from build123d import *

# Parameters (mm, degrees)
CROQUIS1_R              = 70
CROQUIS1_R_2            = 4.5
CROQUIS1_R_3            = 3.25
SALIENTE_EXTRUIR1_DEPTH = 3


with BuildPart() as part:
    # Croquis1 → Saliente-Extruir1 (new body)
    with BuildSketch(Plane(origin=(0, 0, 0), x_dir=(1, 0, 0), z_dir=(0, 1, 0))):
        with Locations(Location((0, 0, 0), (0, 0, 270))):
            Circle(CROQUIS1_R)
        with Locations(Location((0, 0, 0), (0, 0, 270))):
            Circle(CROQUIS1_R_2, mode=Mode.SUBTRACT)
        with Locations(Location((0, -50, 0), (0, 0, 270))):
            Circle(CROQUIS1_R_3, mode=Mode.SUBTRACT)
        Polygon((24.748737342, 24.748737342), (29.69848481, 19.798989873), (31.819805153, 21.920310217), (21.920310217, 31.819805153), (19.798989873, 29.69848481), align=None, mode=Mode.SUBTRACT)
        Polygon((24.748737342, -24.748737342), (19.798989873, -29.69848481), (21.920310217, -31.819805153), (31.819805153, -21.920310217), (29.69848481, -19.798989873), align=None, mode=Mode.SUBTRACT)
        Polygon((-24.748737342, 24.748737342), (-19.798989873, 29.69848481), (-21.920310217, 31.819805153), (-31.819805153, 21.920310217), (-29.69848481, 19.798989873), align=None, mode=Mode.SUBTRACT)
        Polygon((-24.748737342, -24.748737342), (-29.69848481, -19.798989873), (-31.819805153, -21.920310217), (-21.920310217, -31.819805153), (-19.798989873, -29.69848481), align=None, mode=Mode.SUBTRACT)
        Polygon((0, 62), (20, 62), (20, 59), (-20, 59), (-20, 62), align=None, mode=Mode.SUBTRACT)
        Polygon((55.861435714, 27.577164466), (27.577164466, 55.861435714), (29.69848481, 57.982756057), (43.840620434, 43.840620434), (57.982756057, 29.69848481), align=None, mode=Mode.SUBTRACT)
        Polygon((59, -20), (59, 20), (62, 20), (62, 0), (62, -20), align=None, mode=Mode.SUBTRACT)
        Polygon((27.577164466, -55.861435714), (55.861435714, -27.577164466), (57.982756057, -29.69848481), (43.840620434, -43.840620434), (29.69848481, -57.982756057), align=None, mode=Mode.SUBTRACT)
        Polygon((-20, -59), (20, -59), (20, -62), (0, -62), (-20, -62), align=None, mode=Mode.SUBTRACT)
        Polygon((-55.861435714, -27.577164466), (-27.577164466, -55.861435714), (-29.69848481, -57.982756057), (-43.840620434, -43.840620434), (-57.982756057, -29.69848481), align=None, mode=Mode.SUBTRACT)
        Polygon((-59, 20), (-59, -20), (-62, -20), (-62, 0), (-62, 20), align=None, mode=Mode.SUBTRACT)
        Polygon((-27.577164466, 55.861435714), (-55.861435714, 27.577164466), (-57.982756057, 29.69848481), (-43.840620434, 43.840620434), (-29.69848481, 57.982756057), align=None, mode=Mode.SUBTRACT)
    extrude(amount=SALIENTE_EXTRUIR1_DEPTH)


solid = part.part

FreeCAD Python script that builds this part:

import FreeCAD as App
import Part
import Sketcher
Q = App.Units.Quantity

doc = App.newDocument("Part")
body = doc.addObject("PartDesign::Body", "Body")

sketch1 = body.newObject("Sketcher::SketchObject", "Sketch")
sketch1.AttachmentSupport = (doc.getObject("XZ_Plane"), [""])
sketch1.MapMode = "FlatFace"
sketch1.addGeometry(Part.Circle(App.Vector(0, 0, 0), App.Vector(0, 0, 1), 70), False)
sketch1.addGeometry(Part.LineSegment(App.Vector(-29.7, -58, 0), App.Vector(-27.6, -55.9, 0)), False)
sketch1.addGeometry(Part.LineSegment(App.Vector(-27.6, -55.9, 0), App.Vector(-55.9, -27.6, 0)), False)
sketch1.addGeometry(Part.LineSegment(App.Vector(-55.9, -27.6, 0), App.Vector(-58, -29.7, 0)), False)
sketch1.addGeometry(Part.LineSegment(App.Vector(-58, -29.7, 0), App.Vector(-43.8, -43.8, 0)), False)
sketch1.addGeometry(Part.LineSegment(App.Vector(-43.8, -43.8, 0), App.Vector(-29.7, -58, 0)), False)
sketch1.addGeometry(Part.LineSegment(App.Vector(-19.8, -29.7, 0), App.Vector(-24.7, -24.7, 0)), False)
sketch1.addGeometry(Part.LineSegment(App.Vector(-24.7, -24.7, 0), App.Vector(-29.7, -19.8, 0)), False)
sketch1.addGeometry(Part.LineSegment(App.Vector(-29.7, -19.8, 0), App.Vector(-31.8, -21.9, 0)), False)
sketch1.addGeometry(Part.LineSegment(App.Vector(-31.8, -21.9, 0), App.Vector(-21.9, -31.8, 0)), False)
sketch1.addGeometry(Part.LineSegment(App.Vector(-21.9, -31.8, 0), App.Vector(-19.8, -29.7, 0)), False)
sketch1.addGeometry(Part.LineSegment(App.Vector(-62, -20, 0), App.Vector(-59, -20, 0)), False)
sketch1.addGeometry(Part.LineSegment(App.Vector(-59, -20, 0), App.Vector(-59, 20, 0)), False)
sketch1.addGeometry(Part.LineSegment(App.Vector(-59, 20, 0), App.Vector(-62, 20, 0)), False)
sketch1.addGeometry(Part.LineSegment(App.Vector(-62, 20, 0), App.Vector(-62, -20, 0)), False)
sketch1.addGeometry(Part.LineSegment(App.Vector(-58, 29.7, 0), App.Vector(-55.9, 27.6, 0)), False)
sketch1.addGeometry(Part.LineSegment(App.Vector(-55.9, 27.6, 0), App.Vector(-27.6, 55.9, 0)), False)
sketch1.addGeometry(Part.LineSegment(App.Vector(-27.6, 55.9, 0), App.Vector(-29.7, 58, 0)), False)
sketch1.addGeometry(Part.LineSegment(App.Vector(-29.7, 58, 0), App.Vector(-43.8, 43.8, 0)), False)
sketch1.addGeometry(Part.LineSegment(App.Vector(-43.8, 43.8, 0), App.Vector(-58, 29.7, 0)), False)
sketch1.addGeometry(Part.LineSegment(App.Vector(-29.7, 19.8, 0), App.Vector(-24.7, 24.7, 0)), False)
sketch1.addGeometry(Part.LineSegment(App.Vector(-24.7, 24.7, 0), App.Vector(-19.8, 29.7, 0)), False)
sketch1.addGeometry(Part.LineSegment(App.Vector(-19.8, 29.7, 0), App.Vector(-21.9, 31.8, 0)), False)
sketch1.addGeometry(Part.LineSegment(App.Vector(-21.9, 31.8, 0), App.Vector(-31.8, 21.9, 0)), False)
sketch1.addGeometry(Part.LineSegment(App.Vector(-31.8, 21.9, 0), App.Vector(-29.7, 19.8, 0)), False)
sketch1.addGeometry(Part.LineSegment(App.Vector(-20, -62, 0), App.Vector(20, -62, 0)), False)
sketch1.addGeometry(Part.LineSegment(App.Vector(20, -62, 0), App.Vector(20, -59, 0)), False)
sketch1.addGeometry(Part.LineSegment(App.Vector(20, -59, 0), App.Vector(-20, -59, 0)), False)
sketch1.addGeometry(Part.LineSegment(App.Vector(-20, -59, 0), App.Vector(-20, -62, 0)), False)
sketch1.addGeometry(Part.LineSegment(App.Vector(29.7, -19.8, 0), App.Vector(24.7, -24.7, 0)), False)
sketch1.addGeometry(Part.LineSegment(App.Vector(24.7, -24.7, 0), App.Vector(19.8, -29.7, 0)), False)
sketch1.addGeometry(Part.LineSegment(App.Vector(19.8, -29.7, 0), App.Vector(21.9, -31.8, 0)), False)
sketch1.addGeometry(Part.LineSegment(App.Vector(21.9, -31.8, 0), App.Vector(31.8, -21.9, 0)), False)
sketch1.addGeometry(Part.LineSegment(App.Vector(31.8, -21.9, 0), App.Vector(29.7, -19.8, 0)), False)
sketch1.addGeometry(Part.LineSegment(App.Vector(58, -29.7, 0), App.Vector(55.9, -27.6, 0)), False)
sketch1.addGeometry(Part.LineSegment(App.Vector(55.9, -27.6, 0), App.Vector(27.6, -55.9, 0)), False)
sketch1.addGeometry(Part.LineSegment(App.Vector(27.6, -55.9, 0), App.Vector(29.7, -58, 0)), False)
sketch1.addGeometry(Part.LineSegment(App.Vector(29.7, -58, 0), App.Vector(43.8, -43.8, 0)), False)
sketch1.addGeometry(Part.LineSegment(App.Vector(43.8, -43.8, 0), App.Vector(58, -29.7, 0)), False)
sketch1.addGeometry(Part.Circle(App.Vector(0, 0, 0), App.Vector(0, 0, 1), 4.5), False)
sketch1.addGeometry(Part.LineSegment(App.Vector(19.8, 29.7, 0), App.Vector(24.7, 24.7, 0)), False)
sketch1.addGeometry(Part.LineSegment(App.Vector(24.7, 24.7, 0), App.Vector(29.7, 19.8, 0)), False)
sketch1.addGeometry(Part.LineSegment(App.Vector(29.7, 19.8, 0), App.Vector(31.8, 21.9, 0)), False)
sketch1.addGeometry(Part.LineSegment(App.Vector(31.8, 21.9, 0), App.Vector(21.9, 31.8, 0)), False)
sketch1.addGeometry(Part.LineSegment(App.Vector(21.9, 31.8, 0), App.Vector(19.8, 29.7, 0)), False)
sketch1.addGeometry(Part.Circle(App.Vector(0, 50, 0), App.Vector(0, 0, 1), 3.2), False)
sketch1.addGeometry(Part.LineSegment(App.Vector(-20, 62, 0), App.Vector(-20, 59, 0)), False)
sketch1.addGeometry(Part.LineSegment(App.Vector(-20, 59, 0), App.Vector(20, 59, 0)), False)
sketch1.addGeometry(Part.LineSegment(App.Vector(20, 59, 0), App.Vector(20, 62, 0)), False)
sketch1.addGeometry(Part.LineSegment(App.Vector(20, 62, 0), App.Vector(-20, 62, 0)), False)
sketch1.addGeometry(Part.LineSegment(App.Vector(62, 20, 0), App.Vector(59, 20, 0)), False)
sketch1.addGeometry(Part.LineSegment(App.Vector(59, 20, 0), App.Vector(59, -20, 0)), False)
sketch1.addGeometry(Part.LineSegment(App.Vector(59, -20, 0), App.Vector(62, -20, 0)), False)
sketch1.addGeometry(Part.LineSegment(App.Vector(62, -20, 0), App.Vector(62, 20, 0)), False)
sketch1.addGeometry(Part.LineSegment(App.Vector(29.7, 58, 0), App.Vector(27.6, 55.9, 0)), False)
sketch1.addGeometry(Part.LineSegment(App.Vector(27.6, 55.9, 0), App.Vector(55.9, 27.6, 0)), False)
sketch1.addGeometry(Part.LineSegment(App.Vector(55.9, 27.6, 0), App.Vector(58, 29.7, 0)), False)
sketch1.addGeometry(Part.LineSegment(App.Vector(58, 29.7, 0), App.Vector(43.8, 43.8, 0)), False)
sketch1.addGeometry(Part.LineSegment(App.Vector(43.8, 43.8, 0), App.Vector(29.7, 58, 0)), False)
sketch1.addConstraint(Sketcher.Constraint("Coincident", 1, 2, 2, 1))
sketch1.addConstraint(Sketcher.Constraint("Coincident", 2, 2, 3, 1))
sketch1.addConstraint(Sketcher.Constraint("Coincident", 3, 2, 4, 1))
sketch1.addConstraint(Sketcher.Constraint("Coincident", 4, 2, 5, 1))
sketch1.addConstraint(Sketcher.Constraint("Coincident", 5, 2, 1, 1))
sketch1.addConstraint(Sketcher.Constraint("Coincident", 6, 2, 7, 1))
sketch1.addConstraint(Sketcher.Constraint("Coincident", 7, 2, 8, 1))
sketch1.addConstraint(Sketcher.Constraint("Coincident", 8, 2, 9, 1))
sketch1.addConstraint(Sketcher.Constraint("Coincident", 9, 2, 10, 1))
sketch1.addConstraint(Sketcher.Constraint("Coincident", 10, 2, 6, 1))
sketch1.addConstraint(Sketcher.Constraint("Coincident", 11, 2, 12, 1))
sketch1.addConstraint(Sketcher.Constraint("Coincident", 12, 2, 13, 1))
sketch1.addConstraint(Sketcher.Constraint("Coincident", 13, 2, 14, 1))
sketch1.addConstraint(Sketcher.Constraint("Coincident", 14, 2, 11, 1))
sketch1.addConstraint(Sketcher.Constraint("Coincident", 15, 2, 16, 1))
sketch1.addConstraint(Sketcher.Constraint("Coincident", 16, 2, 17, 1))
sketch1.addConstraint(Sketcher.Constraint("Coincident", 17, 2, 18, 1))
sketch1.addConstraint(Sketcher.Constraint("Coincident", 18, 2, 19, 1))
sketch1.addConstraint(Sketcher.Constraint("Coincident", 19, 2, 15, 1))
sketch1.addConstraint(Sketcher.Constraint("Coincident", 20, 2, 21, 1))
sketch1.addConstraint(Sketcher.Constraint("Coincident", 21, 2, 22, 1))
sketch1.addConstraint(Sketcher.Constraint("Coincident", 22, 2, 23, 1))
sketch1.addConstraint(Sketcher.Constraint("Coincident", 23, 2, 24, 1))
sketch1.addConstraint(Sketcher.Constraint("Coincident", 24, 2, 20, 1))
sketch1.addConstraint(Sketcher.Constraint("Coincident", 25, 2, 26, 1))
sketch1.addConstraint(Sketcher.Constraint("Coincident", 26, 2, 27, 1))
sketch1.addConstraint(Sketcher.Constraint("Coincident", 27, 2, 28, 1))
sketch1.addConstraint(Sketcher.Constraint("Coincident", 28, 2, 25, 1))
sketch1.addConstraint(Sketcher.Constraint("Coincident", 29, 2, 30, 1))
sketch1.addConstraint(Sketcher.Constraint("Coincident", 30, 2, 31, 1))
sketch1.addConstraint(Sketcher.Constraint("Coincident", 31, 2, 32, 1))
sketch1.addConstraint(Sketcher.Constraint("Coincident", 32, 2, 33, 1))
sketch1.addConstraint(Sketcher.Constraint("Coincident", 33, 2, 29, 1))
sketch1.addConstraint(Sketcher.Constraint("Coincident", 34, 2, 35, 1))
sketch1.addConstraint(Sketcher.Constraint("Coincident", 35, 2, 36, 1))
sketch1.addConstraint(Sketcher.Constraint("Coincident", 36, 2, 37, 1))
sketch1.addConstraint(Sketcher.Constraint("Coincident", 37, 2, 38, 1))
sketch1.addConstraint(Sketcher.Constraint("Coincident", 38, 2, 34, 1))
sketch1.addConstraint(Sketcher.Constraint("Coincident", 40, 2, 41, 1))
sketch1.addConstraint(Sketcher.Constraint("Coincident", 41, 2, 42, 1))
sketch1.addConstraint(Sketcher.Constraint("Coincident", 42, 2, 43, 1))
sketch1.addConstraint(Sketcher.Constraint("Coincident", 43, 2, 44, 1))
sketch1.addConstraint(Sketcher.Constraint("Coincident", 44, 2, 40, 1))
sketch1.addConstraint(Sketcher.Constraint("Coincident", 46, 2, 47, 1))
sketch1.addConstraint(Sketcher.Constraint("Coincident", 47, 2, 48, 1))
sketch1.addConstraint(Sketcher.Constraint("Coincident", 48, 2, 49, 1))
sketch1.addConstraint(Sketcher.Constraint("Coincident", 49, 2, 46, 1))
sketch1.addConstraint(Sketcher.Constraint("Coincident", 50, 2, 51, 1))
sketch1.addConstraint(Sketcher.Constraint("Coincident", 51, 2, 52, 1))
sketch1.addConstraint(Sketcher.Constraint("Coincident", 52, 2, 53, 1))
sketch1.addConstraint(Sketcher.Constraint("Coincident", 53, 2, 50, 1))
sketch1.addConstraint(Sketcher.Constraint("Coincident", 54, 2, 55, 1))
sketch1.addConstraint(Sketcher.Constraint("Coincident", 55, 2, 56, 1))
sketch1.addConstraint(Sketcher.Constraint("Coincident", 56, 2, 57, 1))
sketch1.addConstraint(Sketcher.Constraint("Coincident", 57, 2, 58, 1))
sketch1.addConstraint(Sketcher.Constraint("Coincident", 58, 2, 54, 1))
sketch1.addConstraint(Sketcher.Constraint("Horizontal", 11))
sketch1.addConstraint(Sketcher.Constraint("Vertical", 12))
sketch1.addConstraint(Sketcher.Constraint("Horizontal", 13))
sketch1.addConstraint(Sketcher.Constraint("Vertical", 14))
sketch1.addConstraint(Sketcher.Constraint("Horizontal", 25))
sketch1.addConstraint(Sketcher.Constraint("Vertical", 26))
sketch1.addConstraint(Sketcher.Constraint("Horizontal", 27))
sketch1.addConstraint(Sketcher.Constraint("Vertical", 28))
sketch1.addConstraint(Sketcher.Constraint("Vertical", 46))
sketch1.addConstraint(Sketcher.Constraint("Horizontal", 47))
sketch1.addConstraint(Sketcher.Constraint("Vertical", 48))
sketch1.addConstraint(Sketcher.Constraint("Horizontal", 49))
sketch1.addConstraint(Sketcher.Constraint("Horizontal", 50))
sketch1.addConstraint(Sketcher.Constraint("Vertical", 51))
sketch1.addConstraint(Sketcher.Constraint("Horizontal", 52))
sketch1.addConstraint(Sketcher.Constraint("Vertical", 53))
sketch1.addConstraint(Sketcher.Constraint("Coincident", 0, 3, -1, 1))
sketch1.addConstraint(Sketcher.Constraint("Coincident", 39, 3, -1, 1))
sketch1.addConstraint(Sketcher.Constraint("Symmetric", 20, 2, 29, 2, -1, 1))
sketch1.addConstraint(Sketcher.Constraint("Symmetric", 21, 2, 30, 2, -1, 1))
sketch1.addConstraint(Sketcher.Constraint("Symmetric", 22, 2, 31, 2, -1, 1))
sketch1.addConstraint(Sketcher.Constraint("Symmetric", 23, 2, 32, 2, -1, 1))
sketch1.addConstraint(Sketcher.Constraint("Symmetric", 24, 2, 33, 2, -1, 1))
sketch1.addConstraint(Sketcher.Constraint("Symmetric", 15, 2, 34, 2, -1, 1))
sketch1.addConstraint(Sketcher.Constraint("Symmetric", 16, 2, 35, 2, -1, 1))
sketch1.addConstraint(Sketcher.Constraint("Symmetric", 17, 2, 36, 2, -1, 1))
sketch1.addConstraint(Sketcher.Constraint("Symmetric", 18, 2, 37, 2, -1, 1))
sketch1.addConstraint(Sketcher.Constraint("Symmetric", 19, 2, 38, 2, -1, 1))
sketch1.addConstraint(Sketcher.Constraint("Symmetric", 6, 2, 40, 2, -1, 1))
sketch1.addConstraint(Sketcher.Constraint("Symmetric", 7, 2, 41, 2, -1, 1))
sketch1.addConstraint(Sketcher.Constraint("Symmetric", 8, 2, 42, 2, -1, 1))
sketch1.addConstraint(Sketcher.Constraint("Symmetric", 9, 2, 43, 2, -1, 1))
sketch1.addConstraint(Sketcher.Constraint("Symmetric", 10, 2, 44, 2, -1, 1))
sketch1.addConstraint(Sketcher.Constraint("Symmetric", 26, 2, 46, 2, -1, 1))
sketch1.addConstraint(Sketcher.Constraint("Symmetric", 28, 2, 48, 2, -1, 1))
sketch1.addConstraint(Sketcher.Constraint("Symmetric", 11, 2, 50, 2, -1, 1))
sketch1.addConstraint(Sketcher.Constraint("Symmetric", 13, 2, 52, 2, -1, 1))
sketch1.addConstraint(Sketcher.Constraint("Symmetric", 1, 2, 54, 2, -1, 1))
sketch1.addConstraint(Sketcher.Constraint("Symmetric", 2, 2, 55, 2, -1, 1))
sketch1.addConstraint(Sketcher.Constraint("Symmetric", 3, 2, 56, 2, -1, 1))
sketch1.addConstraint(Sketcher.Constraint("Symmetric", 4, 2, 57, 2, -1, 1))
sketch1.addConstraint(Sketcher.Constraint("Symmetric", 5, 2, 58, 2, -1, 1))
sketch1.addConstraint(Sketcher.Constraint("Symmetric", 6, 2, 29, 2, -2))
sketch1.addConstraint(Sketcher.Constraint("Symmetric", 10, 2, 30, 2, -2))
sketch1.addConstraint(Sketcher.Constraint("Symmetric", 9, 2, 31, 2, -2))
sketch1.addConstraint(Sketcher.Constraint("Symmetric", 8, 2, 32, 2, -2))
sketch1.addConstraint(Sketcher.Constraint("Symmetric", 7, 2, 33, 2, -2))
sketch1.addConstraint(Sketcher.Constraint("Symmetric", 2, 2, 34, 2, -2))
sketch1.addConstraint(Sketcher.Constraint("Symmetric", 1, 2, 35, 2, -2))
sketch1.addConstraint(Sketcher.Constraint("Symmetric", 5, 2, 36, 2, -2))
sketch1.addConstraint(Sketcher.Constraint("Symmetric", 4, 2, 37, 2, -2))
sketch1.addConstraint(Sketcher.Constraint("Symmetric", 3, 2, 38, 2, -2))
sketch1.addConstraint(Sketcher.Constraint("PointOnObject", 45, 3, -2))
sketch1.addConstraint(Sketcher.Constraint("Perpendicular", 1, 2))
sketch1.addConstraint(Sketcher.Constraint("Perpendicular", 2, 3))
sketch1.addConstraint(Sketcher.Constraint("Perpendicular", 3, 4))
sketch1.addConstraint(Sketcher.Constraint("Parallel", 4, 5))
sketch1.addConstraint(Sketcher.Constraint("Parallel", 5, 6))
sketch1.addConstraint(Sketcher.Constraint("Parallel", 6, 7))
sketch1.addConstraint(Sketcher.Constraint("Perpendicular", 7, 8))
sketch1.addConstraint(Sketcher.Constraint("Perpendicular", 8, 9))
sketch1.addConstraint(Sketcher.Constraint("Perpendicular", 9, 10))
sketch1.addConstraint(Sketcher.Constraint("Perpendicular", 10, 15))
sketch1.addConstraint(Sketcher.Constraint("Horizontal", 3, 2, 10, 2))
sketch1.addConstraint(Sketcher.Constraint("Horizontal", 13, 2, 50, 2))
sketch1.addConstraint(Sketcher.Constraint("Vertical", 5, 2, 7, 2))
sketch1.addConstraint(Sketcher.Constraint("Vertical", 28, 2, 46, 2))
sketch1.addConstraint(Sketcher.Constraint("Equal", 49, 12))
sketch1.addConstraint(Sketcher.Constraint("Equal", 52, 26))
sketch1.addConstraint(Sketcher.Constraint("Equal", 4, 5))
sketch1.addConstraint(Sketcher.Constraint("Equal", 6, 7))
sketch1.addConstraint(Sketcher.Constraint("Equal", 3, 8))
sketch1.addConstraint(Sketcher.Constraint("Diameter", 0, Q("140 mm")))
sketch1.addConstraint(Sketcher.Constraint("Diameter", 39, Q("9 mm")))
sketch1.addConstraint(Sketcher.Constraint("Diameter", 45, Q("6.5 mm")))
sketch1.addConstraint(Sketcher.Constraint("DistanceX", 11, 1, 11, 2, Q("3 mm")))
sketch1.addConstraint(Sketcher.Constraint("DistanceX", 25, 1, 25, 2, Q("40 mm")))
sketch1.addConstraint(Sketcher.Constraint("Distance", 1, Q("3 mm")))
sketch1.addConstraint(Sketcher.Constraint("Distance", 2, Q("40 mm")))
sketch1.addConstraint(Sketcher.Constraint("Distance", 6, Q("7 mm")))
sketch1.addConstraint(Sketcher.Constraint("DistanceY", -1, 1, 45, 3, Q("50 mm")))
sketch1.addConstraint(Sketcher.Constraint("DistanceX", 11, 2, -1, 1, Q("59 mm")))
sketch1.addConstraint(Sketcher.Constraint("DistanceY", 25, 2, -1, 1, Q("62 mm")))
sketch1.addConstraint(Sketcher.Constraint("DistanceY", 32, 2, 41, 2, Q("41.7193 mm")))
sketch1.addConstraint(Sketcher.Constraint("DistanceX", 4, 2, -1, 1, Q("43.84062 mm")))
pad1 = body.newObject("PartDesign::Pad", "Pad")
pad1.Profile = sketch1
pad1.Length = 3
pad1.Reversed = True

doc.recompute()
